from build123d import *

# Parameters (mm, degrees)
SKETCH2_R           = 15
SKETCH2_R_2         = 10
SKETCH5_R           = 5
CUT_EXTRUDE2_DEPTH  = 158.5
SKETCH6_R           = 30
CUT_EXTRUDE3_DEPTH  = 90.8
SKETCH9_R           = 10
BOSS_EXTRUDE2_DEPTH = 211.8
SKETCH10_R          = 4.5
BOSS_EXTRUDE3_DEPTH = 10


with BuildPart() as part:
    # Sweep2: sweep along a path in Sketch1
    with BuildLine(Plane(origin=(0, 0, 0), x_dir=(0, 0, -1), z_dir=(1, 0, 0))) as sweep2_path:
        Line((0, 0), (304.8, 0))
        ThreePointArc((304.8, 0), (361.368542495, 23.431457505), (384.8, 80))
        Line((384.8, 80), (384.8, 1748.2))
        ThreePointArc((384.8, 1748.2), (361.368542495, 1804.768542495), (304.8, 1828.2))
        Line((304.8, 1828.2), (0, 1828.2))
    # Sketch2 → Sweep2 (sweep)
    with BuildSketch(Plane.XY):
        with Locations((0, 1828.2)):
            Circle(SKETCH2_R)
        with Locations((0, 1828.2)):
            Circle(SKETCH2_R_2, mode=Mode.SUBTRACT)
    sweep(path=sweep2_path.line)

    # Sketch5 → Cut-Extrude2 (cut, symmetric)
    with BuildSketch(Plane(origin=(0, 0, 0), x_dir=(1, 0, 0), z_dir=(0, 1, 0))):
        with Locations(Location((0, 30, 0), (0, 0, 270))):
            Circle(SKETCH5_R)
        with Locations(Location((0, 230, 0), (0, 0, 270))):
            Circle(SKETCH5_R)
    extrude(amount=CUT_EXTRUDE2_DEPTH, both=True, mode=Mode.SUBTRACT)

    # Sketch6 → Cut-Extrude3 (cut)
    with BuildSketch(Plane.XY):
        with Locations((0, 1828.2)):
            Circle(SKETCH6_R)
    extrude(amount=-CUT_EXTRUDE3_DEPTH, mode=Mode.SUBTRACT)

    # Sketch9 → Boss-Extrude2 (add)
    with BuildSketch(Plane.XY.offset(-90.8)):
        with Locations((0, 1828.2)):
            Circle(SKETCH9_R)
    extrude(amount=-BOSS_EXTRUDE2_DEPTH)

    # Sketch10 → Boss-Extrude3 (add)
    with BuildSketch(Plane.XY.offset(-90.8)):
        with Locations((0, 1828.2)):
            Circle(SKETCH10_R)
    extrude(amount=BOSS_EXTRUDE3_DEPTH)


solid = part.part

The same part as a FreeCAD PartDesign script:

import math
import FreeCAD as App
import Part
import Sketcher

V = App.Vector

doc = App.newDocument("Part")
params = doc.addObject("Spreadsheet::Sheet", "Params")
for row, (alias, value) in enumerate([
    ("sketch1_diameter", "30 mm"),
    ("sketch1_diameter2", "20 mm"),
    ("sketch2_radius", "80 mm"),
    ("sketch2_width", "1668.2 mm"),
    ("sketch2_height", "304.8 mm"),
    ("sketch3_diameter", "10 mm"),
    ("pocket1_length", "317 mm"),
    ("sketch4_diameter", "60 mm"),
    ("pocket2_length", "90.8 mm"),
    ("sketch5_diameter", "20 mm"),
    ("pad1_length", "211.8 mm"),
    ("sketch6_diameter", "9 mm"),
    ("pad2_length", "10 mm"),
], start=1):
    params.set(f"A{row}", alias)
    params.set(f"B{row}", "=" + value)
    params.setAlias(f"B{row}", alias)

body = doc.addObject("PartDesign::Body", "Body")

sketch1 = doc.addObject("Sketcher::SketchObject", "Sketch")
body.addObject(sketch1)
sketch1.AttachmentSupport = (doc.XY_Plane, [""])
sketch1.MapMode = "FlatFace"
sketch1.addGeometry([
    Part.Circle(V(0, 1828, 0), V(0, 0, 1), 15),
    Part.Circle(V(0, 1828, 0), V(0, 0, 1), 10),
], False)
sketch1.addConstraint([
    Sketcher.Constraint("Coincident", 1, 3, 0, 3),
    Sketcher.Constraint("PointOnObject", 0, 3, -2),
    Sketcher.Constraint("Diameter", 0, 30.0),
    Sketcher.Constraint("Diameter", 1, 20.0),
    Sketcher.Constraint("DistanceY", -1, 1, 0, 3, 1828.2),
])
sketch1.setExpression("Constraints[2]", "Params.sketch1_diameter")
sketch1.setExpression("Constraints[3]", "Params.sketch1_diameter2")

sketch2 = doc.addObject("Sketcher::SketchObject", "Sketch001")
body.addObject(sketch2)
sketch2.AttachmentSupport = (doc.YZ_Plane, [""])
sketch2.MapMode = "FlatFace"
sketch2.addGeometry([
    Part.LineSegment(V(0, 0, 0), V(0, -305, 0)),
    Part.ArcOfCircle(Part.Circle(V(80, -305, 0), V(0, 0, 1), 80), math.radians(180), math.radians(270)),
    Part.LineSegment(V(80, -385, 0), V(1748, -385, 0)),
    Part.ArcOfCircle(Part.Circle(V(1748, -305, 0), V(0, 0, 1), 80), math.radians(-90), math.radians(0)),
    Part.LineSegment(V(1828, -305, 0), V(1828, 0, 0)),
], False)
sketch2.addConstraint([
    Sketcher.Constraint("Tangent", 0, 2, 1, 1),
    Sketcher.Constraint("Tangent", 1, 2, 2, 1),
    Sketcher.Constraint("Tangent", 2, 2, 3, 1),
    Sketcher.Constraint("Tangent", 3, 2, 4, 1),
    Sketcher.Constraint("Vertical", 0),
    Sketcher.Constraint("Horizontal", 2),
    Sketcher.Constraint("Vertical", 4),
    Sketcher.Constraint("Coincident", 0, 1, -1, 1),
    Sketcher.Constraint("Equal", 1, 3),
    Sketcher.Constraint("PointOnObject", 4, 2, -1),
    Sketcher.Constraint("Radius", 1, 80.0),
    Sketcher.Constraint("DistanceX", 2, 1, 2, 2, 1668.2),
    Sketcher.Constraint("DistanceY", 0, 2, 0, 1, 304.8),
])
sketch2.setExpression("Constraints[10]", "Params.sketch2_radius")
sketch2.setExpression("Constraints[11]", "Params.sketch2_width")
sketch2.setExpression("Constraints[12]", "Params.sketch2_height")
doc.recompute()

additivepipe = doc.addObject("PartDesign::AdditivePipe", "AdditivePipe")
body.addObject(additivepipe)
additivepipe.Profile = sketch1
additivepipe.Spine = (sketch2, ["Edge1", "Edge2", "Edge3", "Edge4", "Edge5"])

sketch3 = doc.addObject("Sketcher::SketchObject", "Sketch002")
body.addObject(sketch3)
sketch3.AttachmentSupport = (doc.XZ_Plane, [""])
sketch3.MapMode = "FlatFace"
sketch3.addGeometry([
    Part.Circle(V(0, -30, 0), V(0, 0, 1), 5),
    Part.Circle(V(0, -230, 0), V(0, 0, 1), 5),
], False)
sketch3.addConstraint([
    Sketcher.Constraint("Equal", 0, 1),
    Sketcher.Constraint("PointOnObject", 0, 3, -2),
    Sketcher.Constraint("PointOnObject", 1, 3, -2),
    Sketcher.Constraint("Diameter", 0, 10.0),
    Sketcher.Constraint("DistanceY", 0, 3, -1, 1, 30.0),
    Sketcher.Constraint("DistanceY", 1, 3, -1, 1, 230.0),
])
sketch3.setExpression("Constraints[3]", "Params.sketch3_diameter")
pocket1 = doc.addObject("PartDesign::Pocket", "Pocket")
body.addObject(pocket1)
pocket1.Profile = sketch3
pocket1.setExpression("Length", "Params.pocket1_length")
pocket1.Midplane = True

sketch4 = doc.addObject("Sketcher::SketchObject", "Sketch003")
body.addObject(sketch4)
sketch4.AttachmentSupport = (doc.XY_Plane, [""])
sketch4.MapMode = "FlatFace"
sketch4.addGeometry(Part.Circle(V(0, 1828, 0), V(0, 0, 1), 30), False)
sketch4.addConstraint([
    Sketcher.Constraint("PointOnObject", 0, 3, -2),
    Sketcher.Constraint("Diameter", 0, 60.0),
    Sketcher.Constraint("DistanceY", -1, 1, 0, 3, 1828.2),
])
sketch4.setExpression("Constraints[1]", "Params.sketch4_diameter")
pocket2 = doc.addObject("PartDesign::Pocket", "Pocket001")
body.addObject(pocket2)
pocket2.Profile = sketch4
pocket2.setExpression("Length", "Params.pocket2_length")

sketch5 = doc.addObject("Sketcher::SketchObject", "Sketch004")
body.addObject(sketch5)
sketch5.AttachmentSupport = (doc.XY_Plane, [""])
sketch5.MapMode = "FlatFace"
sketch5.AttachmentOffset = App.Placement(V(0, 0, -90.8), App.Rotation())
sketch5.addGeometry(Part.Circle(V(0, 1828, 0), V(0, 0, 1), 10), False)
sketch5.addConstraint([
    Sketcher.Constraint("PointOnObject", 0, 3, -2),
    Sketcher.Constraint("Diameter", 0, 20.0),
    Sketcher.Constraint("DistanceY", -1, 1, 0, 3, 1828.2),
])
sketch5.setExpression("Constraints[1]", "Params.sketch5_diameter")
pad1 = doc.addObject("PartDesign::Pad", "Pad")
body.addObject(pad1)
pad1.Profile = sketch5
pad1.setExpression("Length", "Params.pad1_length")
pad1.Reversed = True

sketch6 = doc.addObject("Sketcher::SketchObject", "Sketch005")
body.addObject(sketch6)
sketch6.AttachmentSupport = (doc.XY_Plane, [""])
sketch6.MapMode = "FlatFace"
sketch6.AttachmentOffset = App.Placement(V(0, 0, -90.8), App.Rotation())
sketch6.addGeometry(Part.Circle(V(0, 1828.2, 0), V(0, 0, 1), 4.5), False)
sketch6.addConstraint([
    Sketcher.Constraint("PointOnObject", 0, 3, -2),
    Sketcher.Constraint("Diameter", 0, 9.0),
    Sketcher.Constraint("DistanceY", -1, 1, 0, 3, 1828.2),
])
sketch6.setExpression("Constraints[1]", "Params.sketch6_diameter")
pad2 = doc.addObject("PartDesign::Pad", "Pad001")
body.addObject(pad2)
pad2.Profile = sketch6
pad2.setExpression("Length", "Params.pad2_length")

doc.recompute()
